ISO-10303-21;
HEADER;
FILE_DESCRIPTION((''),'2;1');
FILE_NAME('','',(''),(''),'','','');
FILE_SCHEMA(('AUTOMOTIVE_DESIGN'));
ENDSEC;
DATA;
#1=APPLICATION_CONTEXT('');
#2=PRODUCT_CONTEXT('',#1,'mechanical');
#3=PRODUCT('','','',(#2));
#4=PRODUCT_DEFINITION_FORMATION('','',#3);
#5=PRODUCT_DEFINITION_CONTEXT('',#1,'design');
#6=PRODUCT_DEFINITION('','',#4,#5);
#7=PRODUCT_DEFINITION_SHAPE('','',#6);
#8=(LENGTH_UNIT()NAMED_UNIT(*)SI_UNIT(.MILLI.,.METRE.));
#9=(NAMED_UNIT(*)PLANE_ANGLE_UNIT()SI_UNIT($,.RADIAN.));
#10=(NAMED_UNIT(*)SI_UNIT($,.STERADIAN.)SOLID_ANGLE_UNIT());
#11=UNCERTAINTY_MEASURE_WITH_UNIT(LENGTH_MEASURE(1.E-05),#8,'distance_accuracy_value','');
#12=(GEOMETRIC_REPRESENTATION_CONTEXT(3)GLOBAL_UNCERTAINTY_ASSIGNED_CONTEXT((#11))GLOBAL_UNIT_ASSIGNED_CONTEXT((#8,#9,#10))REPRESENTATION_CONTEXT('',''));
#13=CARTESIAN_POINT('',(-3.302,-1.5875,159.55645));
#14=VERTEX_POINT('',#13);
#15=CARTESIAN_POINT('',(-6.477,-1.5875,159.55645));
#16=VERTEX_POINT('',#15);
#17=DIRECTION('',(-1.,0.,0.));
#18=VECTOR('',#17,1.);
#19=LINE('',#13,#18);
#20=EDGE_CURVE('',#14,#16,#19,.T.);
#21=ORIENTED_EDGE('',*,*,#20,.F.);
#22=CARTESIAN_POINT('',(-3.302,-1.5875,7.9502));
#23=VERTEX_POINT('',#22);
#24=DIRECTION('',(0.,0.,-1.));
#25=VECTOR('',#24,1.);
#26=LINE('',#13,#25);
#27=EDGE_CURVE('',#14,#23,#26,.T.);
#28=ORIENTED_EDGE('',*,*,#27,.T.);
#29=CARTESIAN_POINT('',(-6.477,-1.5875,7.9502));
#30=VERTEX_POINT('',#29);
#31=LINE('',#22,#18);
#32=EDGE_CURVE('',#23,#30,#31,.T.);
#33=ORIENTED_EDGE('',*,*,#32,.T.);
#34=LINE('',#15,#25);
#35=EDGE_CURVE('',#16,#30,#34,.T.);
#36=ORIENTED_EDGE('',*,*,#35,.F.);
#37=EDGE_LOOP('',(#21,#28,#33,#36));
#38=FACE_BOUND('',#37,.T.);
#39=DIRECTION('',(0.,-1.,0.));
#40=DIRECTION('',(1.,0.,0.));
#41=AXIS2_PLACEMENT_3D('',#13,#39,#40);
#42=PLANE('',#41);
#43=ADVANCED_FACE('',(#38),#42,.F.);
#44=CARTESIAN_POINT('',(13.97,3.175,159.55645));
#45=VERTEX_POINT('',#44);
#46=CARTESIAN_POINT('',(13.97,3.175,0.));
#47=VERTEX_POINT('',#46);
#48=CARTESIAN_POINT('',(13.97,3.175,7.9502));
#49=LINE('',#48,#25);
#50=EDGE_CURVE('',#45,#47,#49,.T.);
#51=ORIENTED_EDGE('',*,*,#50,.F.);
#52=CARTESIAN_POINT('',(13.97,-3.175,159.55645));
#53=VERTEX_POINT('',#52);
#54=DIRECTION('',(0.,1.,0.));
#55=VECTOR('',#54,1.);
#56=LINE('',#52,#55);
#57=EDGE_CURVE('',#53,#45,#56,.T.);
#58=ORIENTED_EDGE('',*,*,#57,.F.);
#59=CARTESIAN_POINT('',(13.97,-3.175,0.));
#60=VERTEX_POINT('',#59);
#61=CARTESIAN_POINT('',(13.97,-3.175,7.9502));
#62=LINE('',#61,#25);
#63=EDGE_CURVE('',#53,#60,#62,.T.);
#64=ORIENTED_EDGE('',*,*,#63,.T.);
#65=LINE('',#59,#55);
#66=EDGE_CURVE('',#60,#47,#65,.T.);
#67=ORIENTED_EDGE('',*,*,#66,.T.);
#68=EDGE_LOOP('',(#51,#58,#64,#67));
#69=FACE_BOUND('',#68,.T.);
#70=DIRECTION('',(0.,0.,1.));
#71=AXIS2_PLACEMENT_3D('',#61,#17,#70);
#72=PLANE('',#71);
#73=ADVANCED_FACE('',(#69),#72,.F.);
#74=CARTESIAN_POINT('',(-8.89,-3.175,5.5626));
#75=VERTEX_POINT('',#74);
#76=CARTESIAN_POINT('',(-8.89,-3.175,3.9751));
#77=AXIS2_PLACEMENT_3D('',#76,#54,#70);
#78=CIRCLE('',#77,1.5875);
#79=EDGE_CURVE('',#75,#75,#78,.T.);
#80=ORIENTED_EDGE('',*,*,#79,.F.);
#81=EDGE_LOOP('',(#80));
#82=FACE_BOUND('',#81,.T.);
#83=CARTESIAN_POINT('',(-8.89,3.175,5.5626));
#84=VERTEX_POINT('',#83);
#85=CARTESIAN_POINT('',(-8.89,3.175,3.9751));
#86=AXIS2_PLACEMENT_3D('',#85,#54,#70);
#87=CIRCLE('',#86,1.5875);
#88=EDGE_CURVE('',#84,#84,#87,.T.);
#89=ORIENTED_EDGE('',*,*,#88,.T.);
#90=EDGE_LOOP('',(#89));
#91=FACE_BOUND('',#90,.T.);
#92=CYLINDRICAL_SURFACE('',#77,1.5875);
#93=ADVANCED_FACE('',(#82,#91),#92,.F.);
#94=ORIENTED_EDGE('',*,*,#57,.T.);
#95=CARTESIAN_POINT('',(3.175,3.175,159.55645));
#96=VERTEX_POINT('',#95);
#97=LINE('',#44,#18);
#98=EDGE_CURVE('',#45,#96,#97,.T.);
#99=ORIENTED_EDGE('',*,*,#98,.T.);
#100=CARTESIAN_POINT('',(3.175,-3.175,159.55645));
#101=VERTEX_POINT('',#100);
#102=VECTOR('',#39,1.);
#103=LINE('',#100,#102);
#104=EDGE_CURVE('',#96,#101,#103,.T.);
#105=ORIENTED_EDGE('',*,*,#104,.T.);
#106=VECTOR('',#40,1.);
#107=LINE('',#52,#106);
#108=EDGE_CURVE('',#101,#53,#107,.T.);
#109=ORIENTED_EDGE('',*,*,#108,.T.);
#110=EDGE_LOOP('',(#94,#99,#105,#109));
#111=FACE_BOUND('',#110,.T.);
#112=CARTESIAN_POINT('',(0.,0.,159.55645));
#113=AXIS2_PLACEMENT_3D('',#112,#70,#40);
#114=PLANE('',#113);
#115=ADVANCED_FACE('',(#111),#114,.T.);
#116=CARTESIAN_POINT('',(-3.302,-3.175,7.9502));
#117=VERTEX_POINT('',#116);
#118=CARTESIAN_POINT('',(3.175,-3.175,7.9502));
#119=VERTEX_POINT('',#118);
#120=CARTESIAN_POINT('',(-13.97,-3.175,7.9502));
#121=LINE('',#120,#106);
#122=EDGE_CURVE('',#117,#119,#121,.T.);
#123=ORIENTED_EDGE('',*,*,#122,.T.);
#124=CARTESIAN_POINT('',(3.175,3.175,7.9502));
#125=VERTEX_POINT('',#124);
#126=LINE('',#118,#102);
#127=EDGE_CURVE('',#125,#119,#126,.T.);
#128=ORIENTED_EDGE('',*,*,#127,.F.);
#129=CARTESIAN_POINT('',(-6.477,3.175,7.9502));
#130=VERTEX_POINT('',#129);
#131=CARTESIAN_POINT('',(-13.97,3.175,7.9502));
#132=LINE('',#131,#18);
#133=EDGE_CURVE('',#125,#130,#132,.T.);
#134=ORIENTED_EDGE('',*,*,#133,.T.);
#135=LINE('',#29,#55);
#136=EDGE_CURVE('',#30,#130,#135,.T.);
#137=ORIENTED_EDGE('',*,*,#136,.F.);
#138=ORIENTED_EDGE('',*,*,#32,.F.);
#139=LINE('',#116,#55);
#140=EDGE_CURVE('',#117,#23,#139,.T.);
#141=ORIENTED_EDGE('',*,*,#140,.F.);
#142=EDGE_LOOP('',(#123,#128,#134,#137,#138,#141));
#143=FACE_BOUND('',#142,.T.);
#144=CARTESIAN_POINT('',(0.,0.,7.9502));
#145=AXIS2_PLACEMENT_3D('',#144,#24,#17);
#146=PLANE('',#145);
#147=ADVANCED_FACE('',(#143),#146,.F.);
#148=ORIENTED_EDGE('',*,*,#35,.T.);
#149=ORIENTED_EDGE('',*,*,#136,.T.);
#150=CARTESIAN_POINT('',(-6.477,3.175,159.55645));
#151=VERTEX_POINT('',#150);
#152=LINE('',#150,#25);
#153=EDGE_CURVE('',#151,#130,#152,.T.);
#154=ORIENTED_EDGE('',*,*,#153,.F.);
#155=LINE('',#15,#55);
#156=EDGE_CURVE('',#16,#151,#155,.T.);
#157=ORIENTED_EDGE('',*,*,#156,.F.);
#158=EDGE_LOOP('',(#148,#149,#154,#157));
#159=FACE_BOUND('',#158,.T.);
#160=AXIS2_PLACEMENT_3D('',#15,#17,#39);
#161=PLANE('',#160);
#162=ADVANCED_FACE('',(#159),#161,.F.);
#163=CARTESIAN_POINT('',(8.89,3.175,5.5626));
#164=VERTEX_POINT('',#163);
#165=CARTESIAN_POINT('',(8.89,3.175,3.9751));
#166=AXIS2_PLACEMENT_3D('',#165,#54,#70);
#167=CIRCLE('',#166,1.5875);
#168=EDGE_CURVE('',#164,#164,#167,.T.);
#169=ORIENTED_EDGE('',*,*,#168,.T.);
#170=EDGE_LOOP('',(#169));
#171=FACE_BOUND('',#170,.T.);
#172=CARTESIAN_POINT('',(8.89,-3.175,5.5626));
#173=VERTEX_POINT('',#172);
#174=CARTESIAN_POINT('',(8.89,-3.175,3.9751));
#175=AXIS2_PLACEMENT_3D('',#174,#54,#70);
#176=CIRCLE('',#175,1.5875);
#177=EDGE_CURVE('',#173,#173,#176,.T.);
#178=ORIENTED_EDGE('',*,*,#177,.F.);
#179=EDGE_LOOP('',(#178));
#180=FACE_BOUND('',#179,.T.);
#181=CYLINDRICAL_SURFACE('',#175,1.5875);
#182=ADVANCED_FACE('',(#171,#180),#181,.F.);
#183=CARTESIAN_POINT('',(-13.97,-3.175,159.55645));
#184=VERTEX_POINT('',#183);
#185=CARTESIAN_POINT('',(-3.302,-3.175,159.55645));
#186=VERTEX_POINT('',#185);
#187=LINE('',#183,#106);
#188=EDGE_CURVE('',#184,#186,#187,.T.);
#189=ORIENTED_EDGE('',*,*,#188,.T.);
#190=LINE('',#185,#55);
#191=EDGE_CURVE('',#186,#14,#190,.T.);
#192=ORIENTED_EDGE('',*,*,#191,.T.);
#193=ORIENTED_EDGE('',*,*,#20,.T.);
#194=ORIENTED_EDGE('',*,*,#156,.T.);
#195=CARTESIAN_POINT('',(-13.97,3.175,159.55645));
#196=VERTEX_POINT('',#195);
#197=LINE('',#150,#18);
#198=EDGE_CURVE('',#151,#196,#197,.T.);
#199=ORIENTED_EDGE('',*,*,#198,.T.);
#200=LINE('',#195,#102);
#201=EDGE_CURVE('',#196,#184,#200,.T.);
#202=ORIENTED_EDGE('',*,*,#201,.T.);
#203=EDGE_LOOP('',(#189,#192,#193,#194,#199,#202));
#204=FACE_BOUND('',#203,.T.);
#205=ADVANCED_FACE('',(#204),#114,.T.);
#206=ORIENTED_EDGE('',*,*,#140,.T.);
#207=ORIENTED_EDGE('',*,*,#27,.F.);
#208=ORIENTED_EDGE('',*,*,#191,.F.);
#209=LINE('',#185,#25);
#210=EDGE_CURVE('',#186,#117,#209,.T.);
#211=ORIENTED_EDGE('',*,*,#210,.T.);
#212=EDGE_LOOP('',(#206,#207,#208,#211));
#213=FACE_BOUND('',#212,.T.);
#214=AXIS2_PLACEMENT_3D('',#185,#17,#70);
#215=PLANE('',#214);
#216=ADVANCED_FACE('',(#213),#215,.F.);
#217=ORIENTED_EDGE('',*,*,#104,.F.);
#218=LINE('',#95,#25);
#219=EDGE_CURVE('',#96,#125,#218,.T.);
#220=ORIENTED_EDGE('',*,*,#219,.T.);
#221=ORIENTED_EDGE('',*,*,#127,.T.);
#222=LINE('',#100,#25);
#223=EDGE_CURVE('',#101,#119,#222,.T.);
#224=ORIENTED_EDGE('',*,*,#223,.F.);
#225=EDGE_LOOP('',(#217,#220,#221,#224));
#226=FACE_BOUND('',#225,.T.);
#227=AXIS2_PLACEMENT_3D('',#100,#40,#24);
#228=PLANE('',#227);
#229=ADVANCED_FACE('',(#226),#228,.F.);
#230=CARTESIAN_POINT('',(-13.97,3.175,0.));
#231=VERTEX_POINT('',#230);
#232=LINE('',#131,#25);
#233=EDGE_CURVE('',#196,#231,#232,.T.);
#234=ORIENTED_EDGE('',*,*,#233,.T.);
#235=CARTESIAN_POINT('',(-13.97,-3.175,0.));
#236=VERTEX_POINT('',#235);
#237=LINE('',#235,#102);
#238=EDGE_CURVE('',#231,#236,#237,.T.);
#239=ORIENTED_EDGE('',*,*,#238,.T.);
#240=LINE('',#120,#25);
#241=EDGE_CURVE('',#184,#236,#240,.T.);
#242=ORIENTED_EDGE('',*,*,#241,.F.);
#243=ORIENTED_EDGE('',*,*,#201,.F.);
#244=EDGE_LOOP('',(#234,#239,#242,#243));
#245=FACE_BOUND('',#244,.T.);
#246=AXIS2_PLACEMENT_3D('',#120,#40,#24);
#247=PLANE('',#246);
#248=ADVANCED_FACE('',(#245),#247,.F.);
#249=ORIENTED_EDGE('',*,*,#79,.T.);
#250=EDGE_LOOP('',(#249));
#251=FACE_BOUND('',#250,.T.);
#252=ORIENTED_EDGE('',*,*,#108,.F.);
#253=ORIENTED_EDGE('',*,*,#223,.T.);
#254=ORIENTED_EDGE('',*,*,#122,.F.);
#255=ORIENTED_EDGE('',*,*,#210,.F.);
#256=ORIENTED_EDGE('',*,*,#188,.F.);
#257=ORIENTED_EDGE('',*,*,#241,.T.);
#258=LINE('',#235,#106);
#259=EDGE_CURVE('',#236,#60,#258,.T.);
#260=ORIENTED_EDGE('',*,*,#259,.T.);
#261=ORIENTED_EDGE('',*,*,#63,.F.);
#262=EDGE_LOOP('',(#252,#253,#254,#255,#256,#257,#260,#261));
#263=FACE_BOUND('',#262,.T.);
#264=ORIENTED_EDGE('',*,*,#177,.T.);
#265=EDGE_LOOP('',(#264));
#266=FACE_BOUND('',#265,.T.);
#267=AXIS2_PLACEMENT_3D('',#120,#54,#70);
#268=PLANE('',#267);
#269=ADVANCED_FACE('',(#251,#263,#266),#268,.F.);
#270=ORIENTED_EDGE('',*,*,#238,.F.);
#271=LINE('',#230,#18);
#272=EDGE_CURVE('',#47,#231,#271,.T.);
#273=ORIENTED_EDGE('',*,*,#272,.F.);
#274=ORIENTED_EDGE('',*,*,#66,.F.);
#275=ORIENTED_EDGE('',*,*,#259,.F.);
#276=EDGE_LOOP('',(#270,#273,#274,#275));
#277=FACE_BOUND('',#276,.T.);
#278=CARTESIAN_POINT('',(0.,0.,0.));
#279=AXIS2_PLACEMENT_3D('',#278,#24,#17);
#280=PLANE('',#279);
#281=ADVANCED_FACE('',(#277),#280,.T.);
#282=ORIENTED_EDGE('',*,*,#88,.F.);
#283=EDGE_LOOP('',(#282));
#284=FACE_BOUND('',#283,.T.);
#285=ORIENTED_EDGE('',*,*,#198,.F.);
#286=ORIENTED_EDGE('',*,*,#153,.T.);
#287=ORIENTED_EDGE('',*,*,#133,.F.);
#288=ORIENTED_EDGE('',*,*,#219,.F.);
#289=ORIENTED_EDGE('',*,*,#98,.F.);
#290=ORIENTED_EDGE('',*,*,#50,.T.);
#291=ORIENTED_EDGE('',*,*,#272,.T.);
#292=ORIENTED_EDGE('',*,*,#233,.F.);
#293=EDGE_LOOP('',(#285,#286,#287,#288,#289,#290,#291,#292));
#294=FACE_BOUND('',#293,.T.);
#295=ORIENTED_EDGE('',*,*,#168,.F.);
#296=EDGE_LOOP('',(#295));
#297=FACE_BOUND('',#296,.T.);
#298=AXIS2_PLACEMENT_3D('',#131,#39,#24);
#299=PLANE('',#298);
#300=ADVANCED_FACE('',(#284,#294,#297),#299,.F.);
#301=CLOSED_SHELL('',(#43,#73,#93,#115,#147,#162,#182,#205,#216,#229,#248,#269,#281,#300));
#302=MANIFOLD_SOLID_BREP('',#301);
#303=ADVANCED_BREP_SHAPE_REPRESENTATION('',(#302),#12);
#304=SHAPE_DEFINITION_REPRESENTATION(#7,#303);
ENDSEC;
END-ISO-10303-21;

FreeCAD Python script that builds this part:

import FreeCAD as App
import Part
import Sketcher

V = App.Vector
Q = App.Units.Quantity

doc = App.newDocument("Part")
body = doc.addObject("PartDesign::Body", "Body")

# Sketch on XY plane
sketch1 = body.newObject("Sketcher::SketchObject", "Sketch")
sketch1.AttachmentSupport = (doc.getObject("XY_Plane"), [""])
sketch1.MapMode = "FlatFace"
sketch1.addGeometry([
    Part.LineSegment(V(-14, 3, 0), V(-14, -3, 0)),
    Part.LineSegment(V(-14, -3, 0), V(14, -3, 0)),
    Part.LineSegment(V(14, -3, 0), V(14, 3, 0)),
    Part.LineSegment(V(14, 3, 0), V(-14, 3, 0)),
], False)
sketch1.addConstraint([
    Sketcher.Constraint("Coincident", 0, 2, 1, 1),
    Sketcher.Constraint("Coincident", 1, 2, 2, 1),
    Sketcher.Constraint("Coincident", 2, 2, 3, 1),
    Sketcher.Constraint("Coincident", 3, 2, 0, 1),
    Sketcher.Constraint("Vertical", 0),
    Sketcher.Constraint("Horizontal", 1),
    Sketcher.Constraint("Vertical", 2),
    Sketcher.Constraint("Horizontal", 3),
    Sketcher.Constraint("Symmetric", 0, 2, 2, 2, -1, 1),
    Sketcher.Constraint("DistanceX", 1, 1, 1, 2, Q("1.1 in")),
    Sketcher.Constraint("DistanceY", 0, 2, 0, 1, Q("0.25 in")),
])
pad1 = body.newObject("PartDesign::Pad", "Pad")
pad1.Profile = sketch1
pad1.Length = Q("0.313 in")

# Sketch on XY plane
sketch2 = body.newObject("Sketcher::SketchObject", "Sketch001")
sketch2.AttachmentSupport = (doc.getObject("XY_Plane"), [""])
sketch2.MapMode = "FlatFace"
sketch2.AttachmentOffset = App.Placement(V(0, 0, 0.313 * 25.4), App.Rotation())
sketch2.addGeometry([
    Part.LineSegment(V(-3.3, -3.2, 0), V(-3.3, -1.6, 0)),  # 0
    Part.LineSegment(V(-3.3, -1.6, 0), V(-6.5, -1.6, 0)),  # 1
    Part.LineSegment(V(-6.5, -1.6, 0), V(-6.5, 3.2, 0)),  # 2
    Part.LineSegment(V(-6.5, 3.2, 0), V(-14, 3.2, 0)),  # 3
    Part.LineSegment(V(-14, 3.2, 0), V(-14, -3.2, 0)),  # 4
    Part.LineSegment(V(-14, -3.2, 0), V(-3.3, -3.2, 0)),  # 5
    Part.LineSegment(V(3.2, 3.2, 0), V(3.2, -3.2, 0)),  # 6
    Part.LineSegment(V(3.2, -3.2, 0), V(14, -3.2, 0)),  # 7
    Part.LineSegment(V(14, -3.2, 0), V(14, 3.2, 0)),  # 8
    Part.LineSegment(V(14, 3.2, 0), V(3.2, 3.2, 0)),  # 9
], False)
sketch2.addConstraint([
    Sketcher.Constraint("Coincident", 0, 2, 1, 1),
    Sketcher.Constraint("Coincident", 1, 2, 2, 1),
    Sketcher.Constraint("Coincident", 2, 2, 3, 1),
    Sketcher.Constraint("Coincident", 3, 2, 4, 1),
    Sketcher.Constraint("Coincident", 4, 2, 5, 1),
    Sketcher.Constraint("Coincident", 5, 2, 0, 1),
    Sketcher.Constraint("Coincident", 6, 2, 7, 1),
    Sketcher.Constraint("Coincident", 7, 2, 8, 1),
    Sketcher.Constraint("Coincident", 8, 2, 9, 1),
    Sketcher.Constraint("Coincident", 9, 2, 6, 1),
    Sketcher.Constraint("Vertical", 0),
    Sketcher.Constraint("Horizontal", 1),
    Sketcher.Constraint("Vertical", 2),
    Sketcher.Constraint("Horizontal", 3),
    Sketcher.Constraint("Vertical", 4),
    Sketcher.Constraint("Horizontal", 5),
    Sketcher.Constraint("Vertical", 6),
    Sketcher.Constraint("Horizontal", 7),
    Sketcher.Constraint("Vertical", 8),
    Sketcher.Constraint("Horizontal", 9),
    Sketcher.Constraint("Symmetric", 3, 2, 7, 2, -1, 1),
    Sketcher.Constraint("Horizontal", 5, 2, 6, 2),
    Sketcher.Constraint("Horizontal", 3, 2, 8, 2),
    Sketcher.Constraint("DistanceX", 5, 1, 5, 2, Q("0.42 in")),
    Sketcher.Constraint("DistanceY", 4, 2, 4, 1, Q("0.25 in")),
    Sketcher.Constraint("DistanceX", 1, 2, 1, 1, Q("0.125 in")),
    Sketcher.Constraint("DistanceX", 7, 1, 7, 2, Q("0.425 in")),
    Sketcher.Constraint("DistanceY", 0, 1, 0, 2, Q("0.0625 in")),
    Sketcher.Constraint("DistanceX", 0, 2, -1, 1, Q("0.13 in")),
])
pad2 = body.newObject("PartDesign::Pad", "Pad001")
pad2.Profile = sketch2
pad2.Length = Q("5.96875 in")

# Sketch on XZ plane
sketch3 = body.newObject("Sketcher::SketchObject", "Sketch002")
sketch3.AttachmentSupport = (doc.getObject("XZ_Plane"), [""])
sketch3.MapMode = "FlatFace"
sketch3.AttachmentOffset = App.Placement(V(0, 0, -0.125 * 25.4), App.Rotation())
sketch3.addGeometry([
    Part.Circle(V(-8.9, 4, 0), V(0, 0, 1), 1.6),
    Part.Circle(V(8.9, 4, 0), V(0, 0, 1), 1.6),
], False)
sketch3.addConstraint([
    Sketcher.Constraint("Equal", 0, 1),
    Sketcher.Constraint("Symmetric", 0, 3, 1, 3, -2),
    Sketcher.Constraint("Diameter", 0, Q("0.125 in")),
    Sketcher.Constraint("DistanceX", 0, 3, 1, 3, Q("0.7 in")),
    Sketcher.Constraint("DistanceY", -1, 1, 0, 3, Q("0.1565 in")),
])
pocket1 = body.newObject("PartDesign::Pocket", "Pocket")
pocket1.Profile = sketch3
pocket1.Type = "ThroughAll"
pocket1.Reversed = True

doc.recompute()
